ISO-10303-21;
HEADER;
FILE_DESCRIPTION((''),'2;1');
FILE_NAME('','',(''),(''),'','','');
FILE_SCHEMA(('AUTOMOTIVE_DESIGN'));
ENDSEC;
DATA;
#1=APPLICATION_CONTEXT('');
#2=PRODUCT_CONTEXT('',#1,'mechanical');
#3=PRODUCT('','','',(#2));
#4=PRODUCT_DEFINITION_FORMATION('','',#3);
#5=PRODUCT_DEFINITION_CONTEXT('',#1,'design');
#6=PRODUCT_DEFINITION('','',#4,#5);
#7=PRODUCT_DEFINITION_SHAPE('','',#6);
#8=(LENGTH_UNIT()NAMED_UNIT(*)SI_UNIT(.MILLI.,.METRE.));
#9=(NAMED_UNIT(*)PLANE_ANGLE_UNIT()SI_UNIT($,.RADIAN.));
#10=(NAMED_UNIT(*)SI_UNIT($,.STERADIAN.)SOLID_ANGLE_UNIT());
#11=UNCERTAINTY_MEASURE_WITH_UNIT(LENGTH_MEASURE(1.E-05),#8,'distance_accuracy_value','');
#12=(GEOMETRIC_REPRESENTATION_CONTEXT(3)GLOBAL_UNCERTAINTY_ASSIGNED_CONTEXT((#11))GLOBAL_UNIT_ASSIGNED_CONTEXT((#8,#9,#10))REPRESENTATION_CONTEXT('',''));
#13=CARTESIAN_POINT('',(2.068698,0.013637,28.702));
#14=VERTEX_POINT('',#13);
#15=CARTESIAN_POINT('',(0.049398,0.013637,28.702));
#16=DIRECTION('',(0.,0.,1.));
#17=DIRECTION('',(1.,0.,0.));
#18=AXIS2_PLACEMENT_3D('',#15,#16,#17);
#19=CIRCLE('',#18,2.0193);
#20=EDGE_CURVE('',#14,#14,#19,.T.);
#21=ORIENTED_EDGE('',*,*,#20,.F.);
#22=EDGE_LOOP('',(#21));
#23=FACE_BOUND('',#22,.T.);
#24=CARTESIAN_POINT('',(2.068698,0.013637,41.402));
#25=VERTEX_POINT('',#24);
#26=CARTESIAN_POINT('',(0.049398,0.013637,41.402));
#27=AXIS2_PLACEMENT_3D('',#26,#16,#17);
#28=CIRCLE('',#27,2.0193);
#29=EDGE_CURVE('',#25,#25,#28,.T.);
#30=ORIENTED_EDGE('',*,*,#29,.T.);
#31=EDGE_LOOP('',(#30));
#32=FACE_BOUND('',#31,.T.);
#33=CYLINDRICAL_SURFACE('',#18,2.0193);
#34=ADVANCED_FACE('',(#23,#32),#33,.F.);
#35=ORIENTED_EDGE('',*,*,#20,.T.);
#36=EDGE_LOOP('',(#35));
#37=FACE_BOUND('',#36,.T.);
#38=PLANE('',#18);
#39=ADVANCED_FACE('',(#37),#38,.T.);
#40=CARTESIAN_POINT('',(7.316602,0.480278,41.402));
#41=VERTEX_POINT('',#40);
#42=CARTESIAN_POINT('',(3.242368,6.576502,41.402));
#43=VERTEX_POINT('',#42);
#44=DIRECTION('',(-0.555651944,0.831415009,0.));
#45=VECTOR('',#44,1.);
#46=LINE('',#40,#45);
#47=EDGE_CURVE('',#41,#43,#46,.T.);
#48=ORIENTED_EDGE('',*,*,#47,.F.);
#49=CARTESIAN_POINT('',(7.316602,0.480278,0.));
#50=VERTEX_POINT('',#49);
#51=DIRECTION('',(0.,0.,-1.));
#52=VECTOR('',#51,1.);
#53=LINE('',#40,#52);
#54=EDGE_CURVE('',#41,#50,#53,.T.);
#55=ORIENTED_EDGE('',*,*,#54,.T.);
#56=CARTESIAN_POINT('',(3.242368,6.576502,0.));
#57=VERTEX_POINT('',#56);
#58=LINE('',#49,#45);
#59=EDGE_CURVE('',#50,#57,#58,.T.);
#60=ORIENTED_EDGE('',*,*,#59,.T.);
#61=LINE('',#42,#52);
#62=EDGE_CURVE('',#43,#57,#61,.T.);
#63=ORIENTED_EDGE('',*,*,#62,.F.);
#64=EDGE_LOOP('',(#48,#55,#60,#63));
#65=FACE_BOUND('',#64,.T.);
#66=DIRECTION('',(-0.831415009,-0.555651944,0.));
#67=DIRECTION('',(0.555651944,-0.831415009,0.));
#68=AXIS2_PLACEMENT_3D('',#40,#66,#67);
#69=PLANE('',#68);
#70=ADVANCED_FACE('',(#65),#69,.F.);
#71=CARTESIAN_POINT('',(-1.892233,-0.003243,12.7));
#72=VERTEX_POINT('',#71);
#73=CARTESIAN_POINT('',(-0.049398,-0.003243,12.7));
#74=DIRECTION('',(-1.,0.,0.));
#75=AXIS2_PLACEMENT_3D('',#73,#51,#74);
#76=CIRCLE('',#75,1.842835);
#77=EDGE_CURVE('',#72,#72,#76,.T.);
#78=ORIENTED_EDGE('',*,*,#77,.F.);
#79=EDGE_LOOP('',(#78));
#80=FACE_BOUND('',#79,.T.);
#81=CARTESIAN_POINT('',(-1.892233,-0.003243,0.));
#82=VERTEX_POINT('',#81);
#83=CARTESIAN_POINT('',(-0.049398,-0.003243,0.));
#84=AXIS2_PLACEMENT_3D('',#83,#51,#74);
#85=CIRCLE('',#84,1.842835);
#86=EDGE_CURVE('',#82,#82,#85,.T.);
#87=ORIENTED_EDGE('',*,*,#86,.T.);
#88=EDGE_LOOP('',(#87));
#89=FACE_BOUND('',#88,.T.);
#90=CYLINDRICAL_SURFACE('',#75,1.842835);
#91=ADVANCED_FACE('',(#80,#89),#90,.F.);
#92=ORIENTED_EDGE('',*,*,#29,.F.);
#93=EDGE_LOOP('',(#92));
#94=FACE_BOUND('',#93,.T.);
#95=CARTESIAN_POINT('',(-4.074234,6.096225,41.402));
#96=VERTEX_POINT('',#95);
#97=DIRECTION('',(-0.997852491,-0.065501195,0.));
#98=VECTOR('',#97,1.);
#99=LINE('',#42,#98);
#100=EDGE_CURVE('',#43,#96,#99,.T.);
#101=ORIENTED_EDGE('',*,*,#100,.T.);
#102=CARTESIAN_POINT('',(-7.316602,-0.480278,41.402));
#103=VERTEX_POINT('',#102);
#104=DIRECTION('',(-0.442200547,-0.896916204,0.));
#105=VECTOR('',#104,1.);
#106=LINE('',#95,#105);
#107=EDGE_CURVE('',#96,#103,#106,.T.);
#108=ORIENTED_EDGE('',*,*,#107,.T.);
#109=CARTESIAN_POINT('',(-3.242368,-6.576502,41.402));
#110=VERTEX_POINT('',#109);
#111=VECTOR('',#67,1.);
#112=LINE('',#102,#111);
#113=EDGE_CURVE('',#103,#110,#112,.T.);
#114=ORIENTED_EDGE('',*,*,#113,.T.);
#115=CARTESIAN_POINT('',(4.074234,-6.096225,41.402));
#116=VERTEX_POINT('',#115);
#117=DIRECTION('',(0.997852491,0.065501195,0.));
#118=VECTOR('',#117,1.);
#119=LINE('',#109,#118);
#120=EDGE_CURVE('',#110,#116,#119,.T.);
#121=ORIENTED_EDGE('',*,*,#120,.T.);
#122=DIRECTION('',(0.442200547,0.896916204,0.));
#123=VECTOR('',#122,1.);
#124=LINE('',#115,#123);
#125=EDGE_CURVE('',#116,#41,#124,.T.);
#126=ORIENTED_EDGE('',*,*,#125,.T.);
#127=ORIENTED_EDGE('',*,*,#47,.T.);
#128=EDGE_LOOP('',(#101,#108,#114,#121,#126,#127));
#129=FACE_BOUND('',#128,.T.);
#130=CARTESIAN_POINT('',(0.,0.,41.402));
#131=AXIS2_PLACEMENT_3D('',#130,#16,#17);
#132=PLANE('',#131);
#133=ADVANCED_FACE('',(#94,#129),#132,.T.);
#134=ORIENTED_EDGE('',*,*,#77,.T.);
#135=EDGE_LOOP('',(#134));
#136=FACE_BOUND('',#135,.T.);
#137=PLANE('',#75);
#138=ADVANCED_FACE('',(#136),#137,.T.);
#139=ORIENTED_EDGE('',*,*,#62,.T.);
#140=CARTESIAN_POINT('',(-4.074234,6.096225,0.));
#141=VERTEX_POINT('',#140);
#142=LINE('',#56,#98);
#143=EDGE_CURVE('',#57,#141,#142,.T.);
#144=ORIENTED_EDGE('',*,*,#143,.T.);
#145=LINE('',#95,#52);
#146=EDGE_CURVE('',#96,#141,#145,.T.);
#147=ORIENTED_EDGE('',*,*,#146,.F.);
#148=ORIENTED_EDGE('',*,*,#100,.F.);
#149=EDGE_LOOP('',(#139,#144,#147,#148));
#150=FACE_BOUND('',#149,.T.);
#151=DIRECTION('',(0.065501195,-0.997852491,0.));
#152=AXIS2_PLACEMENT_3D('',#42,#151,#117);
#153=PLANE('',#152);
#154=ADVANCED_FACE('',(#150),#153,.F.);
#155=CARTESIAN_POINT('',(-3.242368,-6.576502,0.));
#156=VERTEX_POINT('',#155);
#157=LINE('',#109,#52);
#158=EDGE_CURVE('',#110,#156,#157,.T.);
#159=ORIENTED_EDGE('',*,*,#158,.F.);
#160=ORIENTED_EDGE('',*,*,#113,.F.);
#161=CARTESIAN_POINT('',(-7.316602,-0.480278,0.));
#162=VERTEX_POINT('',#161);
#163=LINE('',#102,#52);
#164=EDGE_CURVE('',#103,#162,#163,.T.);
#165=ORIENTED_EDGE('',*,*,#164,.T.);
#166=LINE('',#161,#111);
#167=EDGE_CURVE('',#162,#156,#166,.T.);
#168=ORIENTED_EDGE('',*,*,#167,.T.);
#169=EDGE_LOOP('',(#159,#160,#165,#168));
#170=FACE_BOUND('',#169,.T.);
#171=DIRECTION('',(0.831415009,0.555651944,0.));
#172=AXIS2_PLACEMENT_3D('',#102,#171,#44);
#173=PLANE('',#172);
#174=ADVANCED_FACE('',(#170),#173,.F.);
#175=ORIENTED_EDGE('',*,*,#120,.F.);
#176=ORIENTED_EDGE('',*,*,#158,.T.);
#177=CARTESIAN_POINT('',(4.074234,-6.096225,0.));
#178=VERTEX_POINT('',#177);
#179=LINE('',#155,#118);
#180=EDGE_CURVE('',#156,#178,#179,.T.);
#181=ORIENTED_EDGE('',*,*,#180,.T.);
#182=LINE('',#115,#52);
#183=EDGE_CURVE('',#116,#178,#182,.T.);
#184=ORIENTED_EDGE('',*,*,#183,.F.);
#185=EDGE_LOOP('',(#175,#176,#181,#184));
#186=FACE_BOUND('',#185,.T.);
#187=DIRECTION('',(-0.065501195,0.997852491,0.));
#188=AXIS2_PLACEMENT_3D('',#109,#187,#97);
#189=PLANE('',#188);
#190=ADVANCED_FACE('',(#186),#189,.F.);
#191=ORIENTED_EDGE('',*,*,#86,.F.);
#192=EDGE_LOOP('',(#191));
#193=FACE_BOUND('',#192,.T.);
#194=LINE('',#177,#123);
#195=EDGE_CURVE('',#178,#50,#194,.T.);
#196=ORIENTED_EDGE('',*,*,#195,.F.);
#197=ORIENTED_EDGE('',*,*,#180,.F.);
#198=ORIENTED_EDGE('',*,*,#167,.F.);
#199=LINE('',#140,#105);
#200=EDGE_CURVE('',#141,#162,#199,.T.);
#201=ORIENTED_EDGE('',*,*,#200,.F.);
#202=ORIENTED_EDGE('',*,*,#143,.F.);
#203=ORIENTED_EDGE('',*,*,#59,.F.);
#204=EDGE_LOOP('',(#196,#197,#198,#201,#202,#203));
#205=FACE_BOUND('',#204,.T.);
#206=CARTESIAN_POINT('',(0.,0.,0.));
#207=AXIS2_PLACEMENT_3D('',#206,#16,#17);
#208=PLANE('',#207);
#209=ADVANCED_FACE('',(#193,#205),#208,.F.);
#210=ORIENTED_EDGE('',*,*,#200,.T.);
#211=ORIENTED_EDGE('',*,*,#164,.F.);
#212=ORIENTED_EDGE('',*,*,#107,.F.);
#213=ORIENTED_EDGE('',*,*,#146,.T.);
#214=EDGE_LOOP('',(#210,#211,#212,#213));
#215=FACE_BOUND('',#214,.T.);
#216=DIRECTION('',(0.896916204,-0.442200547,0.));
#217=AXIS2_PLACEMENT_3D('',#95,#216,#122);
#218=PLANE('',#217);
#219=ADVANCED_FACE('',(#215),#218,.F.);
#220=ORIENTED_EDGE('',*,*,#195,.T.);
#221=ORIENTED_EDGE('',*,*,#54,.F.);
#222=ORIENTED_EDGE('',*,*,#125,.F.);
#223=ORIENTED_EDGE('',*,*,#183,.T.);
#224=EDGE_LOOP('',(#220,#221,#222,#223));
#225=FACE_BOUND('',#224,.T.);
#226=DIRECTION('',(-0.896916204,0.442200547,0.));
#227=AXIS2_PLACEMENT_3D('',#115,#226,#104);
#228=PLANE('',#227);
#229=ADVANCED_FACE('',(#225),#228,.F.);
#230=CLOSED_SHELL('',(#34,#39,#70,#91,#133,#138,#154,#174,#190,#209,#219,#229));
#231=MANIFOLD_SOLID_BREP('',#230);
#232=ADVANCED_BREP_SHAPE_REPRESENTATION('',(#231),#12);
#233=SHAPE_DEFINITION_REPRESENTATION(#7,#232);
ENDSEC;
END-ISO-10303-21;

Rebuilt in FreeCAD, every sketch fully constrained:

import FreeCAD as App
import Part
import Sketcher
Q = App.Units.Quantity


def add_polygon(sketch, points):
    """Adds a closed chain of lines whose ends are joined by coincident constraints."""
    first, n = sketch.GeometryCount, len(points)
    for a, b in zip(points, points[1:] + points[:1]):
        sketch.addGeometry(Part.LineSegment(App.Vector(*a, 0), App.Vector(*b, 0)), False)
    for i in range(n):
        sketch.addConstraint(Sketcher.Constraint("Coincident", first + i, 2, first + (i + 1) % n, 1))

doc = App.newDocument("Part")
body = doc.addObject("PartDesign::Body", "Body")

# Sketch on XY plane
sketch1 = body.newObject("Sketcher::SketchObject", "Sketch")
sketch1.AttachmentSupport = (doc.getObject("XY_Plane"), [""])
sketch1.MapMode = "FlatFace"
add_polygon(sketch1, [(3, 7), (-4, 6), (-7, 0), (-3, -7), (4, -6), (7, 0)])  # lines 0-5
sketch1.addConstraint([
    Sketcher.Constraint("Symmetric", 0, 2, 3, 2, -1, 1),
    Sketcher.Constraint("Symmetric", 1, 2, 4, 2, -1, 1),
    Sketcher.Constraint("Symmetric", 2, 2, 5, 2, -1, 1),
    Sketcher.Constraint("Equal", 0, 1),
    Sketcher.Constraint("Equal", 1, 2),
    Sketcher.Constraint("Distance", 0, 7.332348),
    Sketcher.Constraint("DistanceX", 2, 2, -1, 1, 3.242368),
    Sketcher.Constraint("DistanceX", 1, 2, 0, 2, 3.242368),
    Sketcher.Constraint("DistanceY", 3, 2, 0, 2, 12.192449),
])
pad1 = body.newObject("PartDesign::Pad", "Pad")
pad1.Profile = sketch1
pad1.Length = Q("1.63 in")

# Sketch on XY plane
sketch2 = body.newObject("Sketcher::SketchObject", "Sketch001")
sketch2.AttachmentSupport = (doc.getObject("XY_Plane"), [""])
sketch2.MapMode = "FlatFace"
sketch2.AttachmentOffset = App.Placement(App.Vector(0, 0, 1.63 * 25.4), App.Rotation())
sketch2.addGeometry(Part.Circle(App.Vector(0, 0, 0), App.Vector(0, 0, 1), 2), False)
sketch2.addConstraint([
    Sketcher.Constraint("Diameter", 0, Q("0.159 in")),
    Sketcher.Constraint("DistanceX", -1, 1, 0, 3, 0.049398),
    Sketcher.Constraint("DistanceY", -1, 1, 0, 3, 0.013637),
])
pocket1 = body.newObject("PartDesign::Pocket", "Pocket")
pocket1.Profile = sketch2
pocket1.Length = Q("0.5 in")

# Sketch on XY plane
sketch3 = body.newObject("Sketcher::SketchObject", "Sketch002")
sketch3.AttachmentSupport = (doc.getObject("XY_Plane"), [""])
sketch3.MapMode = "FlatFace"
sketch3.addGeometry(Part.Circle(App.Vector(0, 0, 0), App.Vector(0, 0, 1), 1.8), False)
sketch3.addConstraint([
    Sketcher.Constraint("Diameter", 0, 3.68567),
    Sketcher.Constraint("DistanceX", 0, 3, -1, 1, 0.049398),
    Sketcher.Constraint("DistanceY", 0, 3, -1, 1, 0.003243),
])
pocket2 = body.newObject("PartDesign::Pocket", "Pocket001")
pocket2.Profile = sketch3
pocket2.Length = Q("0.5 in")
pocket2.Reversed = True

doc.recompute()
